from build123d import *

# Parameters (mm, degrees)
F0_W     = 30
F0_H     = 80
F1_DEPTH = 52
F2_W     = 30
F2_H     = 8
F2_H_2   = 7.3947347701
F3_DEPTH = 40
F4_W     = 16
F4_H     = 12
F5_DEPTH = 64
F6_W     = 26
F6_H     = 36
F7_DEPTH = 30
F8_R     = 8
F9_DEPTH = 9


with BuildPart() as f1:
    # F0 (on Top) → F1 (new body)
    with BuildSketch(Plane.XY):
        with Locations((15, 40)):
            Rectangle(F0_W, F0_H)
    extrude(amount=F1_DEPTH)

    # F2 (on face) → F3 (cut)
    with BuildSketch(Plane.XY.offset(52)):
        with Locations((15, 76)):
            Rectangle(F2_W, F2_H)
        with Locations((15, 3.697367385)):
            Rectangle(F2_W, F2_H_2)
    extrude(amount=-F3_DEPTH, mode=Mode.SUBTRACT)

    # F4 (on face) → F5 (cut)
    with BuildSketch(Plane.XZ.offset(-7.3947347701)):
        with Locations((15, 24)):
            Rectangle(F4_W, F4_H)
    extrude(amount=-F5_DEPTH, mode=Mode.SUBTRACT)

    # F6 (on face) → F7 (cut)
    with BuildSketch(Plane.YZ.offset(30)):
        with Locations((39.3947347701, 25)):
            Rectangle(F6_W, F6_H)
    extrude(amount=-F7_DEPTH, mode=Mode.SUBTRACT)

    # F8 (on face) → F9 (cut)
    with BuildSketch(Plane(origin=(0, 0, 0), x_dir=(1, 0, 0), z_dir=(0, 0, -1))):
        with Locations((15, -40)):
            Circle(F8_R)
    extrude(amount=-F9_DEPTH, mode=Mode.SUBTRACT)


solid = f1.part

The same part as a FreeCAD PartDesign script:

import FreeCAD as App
import Part
import Sketcher

V = App.Vector

doc = App.newDocument("Part")
body = doc.addObject("PartDesign::Body", "Body")

# Sketch on XY plane
sketch1 = body.newObject("Sketcher::SketchObject", "Sketch")
sketch1.AttachmentSupport = (doc.getObject("XY_Plane"), [""])
sketch1.MapMode = "FlatFace"
sketch1.addGeometry(Part.LineSegment(V(0, 80, 0), V(0, 0, 0)), False)
sketch1.addGeometry(Part.LineSegment(V(0, 0, 0), V(30, 0, 0)), False)
sketch1.addGeometry(Part.LineSegment(V(30, 0, 0), V(30, 80, 0)), False)
sketch1.addGeometry(Part.LineSegment(V(30, 80, 0), V(0, 80, 0)), False)
sketch1.addConstraint(Sketcher.Constraint("Coincident", 0, 2, 1, 1))
sketch1.addConstraint(Sketcher.Constraint("Coincident", 1, 2, 2, 1))
sketch1.addConstraint(Sketcher.Constraint("Coincident", 2, 2, 3, 1))
sketch1.addConstraint(Sketcher.Constraint("Coincident", 3, 2, 0, 1))
sketch1.addConstraint(Sketcher.Constraint("Vertical", 0))
sketch1.addConstraint(Sketcher.Constraint("Horizontal", 1))
sketch1.addConstraint(Sketcher.Constraint("Vertical", 2))
sketch1.addConstraint(Sketcher.Constraint("Horizontal", 3))
sketch1.addConstraint(Sketcher.Constraint("Coincident", 0, 2, -1, 1))
sketch1.addConstraint(Sketcher.Constraint("DistanceX", 1, 1, 1, 2, 30.0))
sketch1.addConstraint(Sketcher.Constraint("DistanceY", 0, 2, 0, 1, 80.0))
pad1 = body.newObject("PartDesign::Pad", "Pad")
pad1.Profile = sketch1
pad1.Length = 52

# Sketch on XY plane
sketch2 = body.newObject("Sketcher::SketchObject", "Sketch001")
sketch2.AttachmentSupport = (doc.getObject("XY_Plane"), [""])
sketch2.MapMode = "FlatFace"
sketch2.AttachmentOffset = App.Placement(V(0, 0, 52), App.Rotation())
sketch2.addGeometry(Part.LineSegment(V(0, 80, 0), V(0, 72, 0)), False)
sketch2.addGeometry(Part.LineSegment(V(0, 72, 0), V(30, 72, 0)), False)
sketch2.addGeometry(Part.LineSegment(V(30, 72, 0), V(30, 80, 0)), False)
sketch2.addGeometry(Part.LineSegment(V(30, 80, 0), V(0, 80, 0)), False)
sketch2.addGeometry(Part.LineSegment(V(0, 7, 0), V(0, 0, 0)), False)
sketch2.addGeometry(Part.LineSegment(V(0, 0, 0), V(30, 0, 0)), False)
sketch2.addGeometry(Part.LineSegment(V(30, 0, 0), V(30, 7, 0)), False)
sketch2.addGeometry(Part.LineSegment(V(30, 7, 0), V(0, 7, 0)), False)
sketch2.addConstraint(Sketcher.Constraint("Coincident", 0, 2, 1, 1))
sketch2.addConstraint(Sketcher.Constraint("Coincident", 1, 2, 2, 1))
sketch2.addConstraint(Sketcher.Constraint("Coincident", 2, 2, 3, 1))
sketch2.addConstraint(Sketcher.Constraint("Coincident", 3, 2, 0, 1))
sketch2.addConstraint(Sketcher.Constraint("Coincident", 4, 2, 5, 1))
sketch2.addConstraint(Sketcher.Constraint("Coincident", 5, 2, 6, 1))
sketch2.addConstraint(Sketcher.Constraint("Coincident", 6, 2, 7, 1))
sketch2.addConstraint(Sketcher.Constraint("Coincident", 7, 2, 4, 1))
sketch2.addConstraint(Sketcher.Constraint("Vertical", 0))
sketch2.addConstraint(Sketcher.Constraint("Horizontal", 1))
sketch2.addConstraint(Sketcher.Constraint("Vertical", 2))
sketch2.addConstraint(Sketcher.Constraint("Horizontal", 3))
sketch2.addConstraint(Sketcher.Constraint("Vertical", 4))
sketch2.addConstraint(Sketcher.Constraint("Horizontal", 5))
sketch2.addConstraint(Sketcher.Constraint("Vertical", 6))
sketch2.addConstraint(Sketcher.Constraint("Horizontal", 7))
sketch2.addConstraint(Sketcher.Constraint("Coincident", 4, 2, -1, 1))
sketch2.addConstraint(Sketcher.Constraint("PointOnObject", 0, 2, -2))
sketch2.addConstraint(Sketcher.Constraint("Vertical", 2, 2, 5, 2))
sketch2.addConstraint(Sketcher.Constraint("DistanceX", 1, 1, 1, 2, 30.0))
sketch2.addConstraint(Sketcher.Constraint("DistanceY", 0, 2, 0, 1, 8.0))
sketch2.addConstraint(Sketcher.Constraint("DistanceY", -1, 1, 0, 2, 72.0))
sketch2.addConstraint(Sketcher.Constraint("DistanceY", 4, 2, 4, 1, 7.394735))
pocket1 = body.newObject("PartDesign::Pocket", "Pocket")
pocket1.Profile = sketch2
pocket1.Length = 40

# Sketch on XZ plane
sketch3 = body.newObject("Sketcher::SketchObject", "Sketch002")
sketch3.AttachmentSupport = (doc.getObject("XZ_Plane"), [""])
sketch3.MapMode = "FlatFace"
sketch3.AttachmentOffset = App.Placement(V(0, 0, -7.394735), App.Rotation())
sketch3.addGeometry(Part.LineSegment(V(7, 30, 0), V(7, 18, 0)), False)
sketch3.addGeometry(Part.LineSegment(V(7, 18, 0), V(23, 18, 0)), False)
sketch3.addGeometry(Part.LineSegment(V(23, 18, 0), V(23, 30, 0)), False)
sketch3.addGeometry(Part.LineSegment(V(23, 30, 0), V(7, 30, 0)), False)
sketch3.addConstraint(Sketcher.Constraint("Coincident", 0, 2, 1, 1))
sketch3.addConstraint(Sketcher.Constraint("Coincident", 1, 2, 2, 1))
sketch3.addConstraint(Sketcher.Constraint("Coincident", 2, 2, 3, 1))
sketch3.addConstraint(Sketcher.Constraint("Coincident", 3, 2, 0, 1))
sketch3.addConstraint(Sketcher.Constraint("Vertical", 0))
sketch3.addConstraint(Sketcher.Constraint("Horizontal", 1))
sketch3.addConstraint(Sketcher.Constraint("Vertical", 2))
sketch3.addConstraint(Sketcher.Constraint("Horizontal", 3))
sketch3.addConstraint(Sketcher.Constraint("DistanceX", 1, 1, 1, 2, 16.0))
sketch3.addConstraint(Sketcher.Constraint("DistanceY", 0, 2, 0, 1, 12.0))
sketch3.addConstraint(Sketcher.Constraint("DistanceX", -1, 1, 0, 2, 7.0))
sketch3.addConstraint(Sketcher.Constraint("DistanceY", -1, 1, 0, 2, 18.0))
pocket2 = body.newObject("PartDesign::Pocket", "Pocket001")
pocket2.Profile = sketch3
pocket2.Length = 64

# Sketch on YZ plane
sketch4 = body.newObject("Sketcher::SketchObject", "Sketch003")
sketch4.AttachmentSupport = (doc.getObject("YZ_Plane"), [""])
sketch4.MapMode = "FlatFace"
sketch4.AttachmentOffset = App.Placement(V(0, 0, 30), App.Rotation())
sketch4.addGeometry(Part.LineSegment(V(26, 43, 0), V(26, 7, 0)), False)
sketch4.addGeometry(Part.LineSegment(V(26, 7, 0), V(52, 7, 0)), False)
sketch4.addGeometry(Part.LineSegment(V(52, 7, 0), V(52, 43, 0)), False)
sketch4.addGeometry(Part.LineSegment(V(52, 43, 0), V(26, 43, 0)), False)
sketch4.addConstraint(Sketcher.Constraint("Coincident", 0, 2, 1, 1))
sketch4.addConstraint(Sketcher.Constraint("Coincident", 1, 2, 2, 1))
sketch4.addConstraint(Sketcher.Constraint("Coincident", 2, 2, 3, 1))
sketch4.addConstraint(Sketcher.Constraint("Coincident", 3, 2, 0, 1))
sketch4.addConstraint(Sketcher.Constraint("Vertical", 0))
sketch4.addConstraint(Sketcher.Constraint("Horizontal", 1))
sketch4.addConstraint(Sketcher.Constraint("Vertical", 2))
sketch4.addConstraint(Sketcher.Constraint("Horizontal", 3))
sketch4.addConstraint(Sketcher.Constraint("DistanceX", 1, 1, 1, 2, 26.0))
sketch4.addConstraint(Sketcher.Constraint("DistanceY", 0, 2, 0, 1, 36.0))
sketch4.addConstraint(Sketcher.Constraint("DistanceY", -1, 1, 0, 2, 7.0))
sketch4.addConstraint(Sketcher.Constraint("DistanceX", -1, 1, 0, 2, 26.394735))
pocket3 = body.newObject("PartDesign::Pocket", "Pocket002")
pocket3.Profile = sketch4
pocket3.Length = 30

# Sketch on XY plane
sketch5 = body.newObject("Sketcher::SketchObject", "Sketch004")
sketch5.AttachmentSupport = (doc.getObject("XY_Plane"), [""])
sketch5.MapMode = "FlatFace"
sketch5.addGeometry(Part.Circle(V(15, 40, 0), V(0, 0, 1), 8), False)
sketch5.addConstraint(Sketcher.Constraint("Diameter", 0, 16.0))
sketch5.addConstraint(Sketcher.Constraint("DistanceX", -1, 1, 0, 3, 15.0))
sketch5.addConstraint(Sketcher.Constraint("DistanceY", -1, 1, 0, 3, 40.0))
pocket4 = body.newObject("PartDesign::Pocket", "Pocket003")
pocket4.Profile = sketch5
pocket4.Length = 9
pocket4.Reversed = True

doc.recompute()
